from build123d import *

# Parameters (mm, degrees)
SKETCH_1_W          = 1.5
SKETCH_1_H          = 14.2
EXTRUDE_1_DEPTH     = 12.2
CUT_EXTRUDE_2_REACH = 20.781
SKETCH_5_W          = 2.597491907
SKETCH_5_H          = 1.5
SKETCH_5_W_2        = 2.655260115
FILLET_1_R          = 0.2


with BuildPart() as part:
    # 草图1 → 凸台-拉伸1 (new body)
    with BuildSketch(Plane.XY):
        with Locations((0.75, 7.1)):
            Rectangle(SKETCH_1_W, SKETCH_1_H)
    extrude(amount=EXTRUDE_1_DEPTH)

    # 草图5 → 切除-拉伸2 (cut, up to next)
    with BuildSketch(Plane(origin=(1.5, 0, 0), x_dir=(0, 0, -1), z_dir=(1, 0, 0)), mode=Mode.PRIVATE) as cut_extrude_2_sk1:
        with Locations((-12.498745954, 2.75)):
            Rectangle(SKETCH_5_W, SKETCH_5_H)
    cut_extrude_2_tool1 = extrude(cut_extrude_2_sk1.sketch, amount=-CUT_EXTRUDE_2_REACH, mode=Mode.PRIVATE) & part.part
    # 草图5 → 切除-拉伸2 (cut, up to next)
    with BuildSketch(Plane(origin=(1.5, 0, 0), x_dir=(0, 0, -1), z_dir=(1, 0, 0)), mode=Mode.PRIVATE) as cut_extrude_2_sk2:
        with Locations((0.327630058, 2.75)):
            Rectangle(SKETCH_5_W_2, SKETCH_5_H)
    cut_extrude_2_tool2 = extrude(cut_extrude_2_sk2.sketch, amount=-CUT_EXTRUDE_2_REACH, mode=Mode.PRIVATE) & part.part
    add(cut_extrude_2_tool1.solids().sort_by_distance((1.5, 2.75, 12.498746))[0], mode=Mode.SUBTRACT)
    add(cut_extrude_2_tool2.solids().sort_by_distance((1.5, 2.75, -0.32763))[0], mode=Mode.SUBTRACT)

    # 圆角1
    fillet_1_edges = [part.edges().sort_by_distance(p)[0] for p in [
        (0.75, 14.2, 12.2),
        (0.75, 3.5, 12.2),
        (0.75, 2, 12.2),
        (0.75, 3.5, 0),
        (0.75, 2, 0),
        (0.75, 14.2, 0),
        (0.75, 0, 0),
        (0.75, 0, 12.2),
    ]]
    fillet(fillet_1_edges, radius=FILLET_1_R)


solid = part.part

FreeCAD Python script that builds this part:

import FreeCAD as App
import Part
import Sketcher
from FreeCAD import Vector
Q = App.Units.Quantity


def edges_at(feature, points):
    """Names of the edges that pass closest to the given points."""
    edges = feature.Shape.Edges
    near = lambda p: min(range(len(edges)), key=lambda i: edges[i].distToShape(Part.Vertex(*p))[0])
    return sorted({f"Edge{near(p) + 1}" for p in points})

doc = App.newDocument("Part")
params = doc.addObject("Spreadsheet::Sheet", "Params")
for row, (alias, value) in enumerate([
    ("sketch1_width", "1.5 mm"),
    ("sketch1_height", "14.2 mm"),
    ("pad1_length", "12.2 mm"),
    ("sketch2_width", "1.5 mm"),
    ("pocket1_length", "1.5 mm"),
    ("sketch3_width", "1.5 mm"),
    ("pocket2_length", "1.5 mm"),
    ("fillet_radius", "0.2 mm"),
], start=1):
    params.set(f"A{row}", alias)
    params.set(f"B{row}", "=" + value)
    params.setAlias(f"B{row}", alias)

body = doc.addObject("PartDesign::Body", "Body")

# Sketch on XY plane
sketch1 = body.newObject("Sketcher::SketchObject", "Sketch")
sketch1.AttachmentSupport = (doc.getObject("XY_Plane"), [""])
sketch1.MapMode = "FlatFace"
sketch1.addGeometry([
    Part.LineSegment(Vector(0, 14.2, 0), Vector(0, 0, 0)),
    Part.LineSegment(Vector(0, 0, 0), Vector(1.5, 0, 0)),
    Part.LineSegment(Vector(1.5, 0, 0), Vector(1.5, 14.2, 0)),
    Part.LineSegment(Vector(1.5, 14.2, 0), Vector(0, 14.2, 0)),
], False)
sketch1.addConstraint([
    Sketcher.Constraint("Coincident", 0, 2, 1, 1),
    Sketcher.Constraint("Coincident", 1, 2, 2, 1),
    Sketcher.Constraint("Coincident", 2, 2, 3, 1),
    Sketcher.Constraint("Coincident", 3, 2, 0, 1),
    Sketcher.Constraint("Vertical", 0),
    Sketcher.Constraint("Horizontal", 1),
    Sketcher.Constraint("Vertical", 2),
    Sketcher.Constraint("Horizontal", 3),
    Sketcher.Constraint("Coincident", 0, 2, -1, 1),
    Sketcher.Constraint("DistanceX", 1, 1, 1, 2, Q("1.5 mm")),
    Sketcher.Constraint("DistanceY", 0, 2, 0, 1, Q("14.2 mm")),
])
sketch1.setExpression("Constraints[9]", "Params.sketch1_width")
sketch1.setExpression("Constraints[10]", "Params.sketch1_height")
pad1 = body.newObject("PartDesign::Pad", "Pad")
pad1.Profile = sketch1
pad1.setExpression("Length", "Params.pad1_length")

# Sketch on YZ plane
sketch2 = body.newObject("Sketcher::SketchObject", "Sketch001")
sketch2.AttachmentSupport = (doc.getObject("YZ_Plane"), [""])
sketch2.MapMode = "FlatFace"
sketch2.AttachmentOffset = App.Placement(Vector(0, 0, 1.5), App.Rotation())
sketch2.addGeometry([
    Part.LineSegment(Vector(3.5, 13.797492, 0), Vector(2, 13.797492, 0)),
    Part.LineSegment(Vector(2, 13.797492, 0), Vector(2, 11.2, 0)),
    Part.LineSegment(Vector(2, 11.2, 0), Vector(3.5, 11.2, 0)),
    Part.LineSegment(Vector(3.5, 11.2, 0), Vector(3.5, 13.797492, 0)),
], False)
sketch2.addConstraint([
    Sketcher.Constraint("Coincident", 0, 2, 1, 1),
    Sketcher.Constraint("Coincident", 1, 2, 2, 1),
    Sketcher.Constraint("Coincident", 2, 2, 3, 1),
    Sketcher.Constraint("Coincident", 3, 2, 0, 1),
    Sketcher.Constraint("Horizontal", 0),
    Sketcher.Constraint("Vertical", 1),
    Sketcher.Constraint("Horizontal", 2),
    Sketcher.Constraint("Vertical", 3),
    Sketcher.Constraint("DistanceX", 0, 2, 0, 1, Q("1.5 mm")),
    Sketcher.Constraint("DistanceX", -1, 1, 0, 2, Q("2 mm")),
    Sketcher.Constraint("DistanceY", -1, 1, 1, 2, Q("11.2 mm")),
    Sketcher.Constraint("DistanceY", 1, 2, 1, 1, Q("2.597492 mm")),
])
sketch2.setExpression("Constraints[8]", "Params.sketch2_width")
pocket1 = body.newObject("PartDesign::Pocket", "Pocket")
pocket1.Profile = sketch2
pocket1.setExpression("Length", "Params.pocket1_length")

# Sketch on YZ plane
sketch3 = body.newObject("Sketcher::SketchObject", "Sketch002")
sketch3.AttachmentSupport = (doc.getObject("YZ_Plane"), [""])
sketch3.MapMode = "FlatFace"
sketch3.AttachmentOffset = App.Placement(Vector(0, 0, 1.5), App.Rotation())
sketch3.addGeometry([
    Part.LineSegment(Vector(3.5, 1, 0), Vector(2, 1, 0)),
    Part.LineSegment(Vector(2, 1, 0), Vector(2, -1.65526, 0)),
    Part.LineSegment(Vector(2, -1.65526, 0), Vector(3.5, -1.65526, 0)),
    Part.LineSegment(Vector(3.5, -1.65526, 0), Vector(3.5, 1, 0)),
], False)
sketch3.addConstraint([
    Sketcher.Constraint("Coincident", 0, 2, 1, 1),
    Sketcher.Constraint("Coincident", 1, 2, 2, 1),
    Sketcher.Constraint("Coincident", 2, 2, 3, 1),
    Sketcher.Constraint("Coincident", 3, 2, 0, 1),
    Sketcher.Constraint("Horizontal", 0),
    Sketcher.Constraint("Vertical", 1),
    Sketcher.Constraint("Horizontal", 2),
    Sketcher.Constraint("Vertical", 3),
    Sketcher.Constraint("DistanceX", 0, 2, 0, 1, Q("1.5 mm")),
    Sketcher.Constraint("DistanceX", -1, 1, 0, 2, Q("2 mm")),
    Sketcher.Constraint("DistanceY", -1, 1, 0, 2, Q("1 mm")),
    Sketcher.Constraint("DistanceY", 1, 2, 1, 1, Q("2.65526 mm")),
])
sketch3.setExpression("Constraints[8]", "Params.sketch3_width")
pocket2 = body.newObject("PartDesign::Pocket", "Pocket001")
pocket2.Profile = sketch3
pocket2.setExpression("Length", "Params.pocket2_length")
doc.recompute()

fillet = body.newObject("PartDesign::Fillet", "Fillet")
fillet.Base = (pocket2, edges_at(pocket2, [
    (0.75, 14.2, 12.2),
    (0.75, 3.5, 12.2),
    (0.75, 2, 12.2),
    (0.75, 3.5, 0),
    (0.75, 2, 0),
    (0.75, 14.2, 0),
    (0.75, 0, 0),
    (0.75, 0, 12.2),
]))
fillet.setExpression("Radius", "Params.fillet_radius")

doc.recompute()
